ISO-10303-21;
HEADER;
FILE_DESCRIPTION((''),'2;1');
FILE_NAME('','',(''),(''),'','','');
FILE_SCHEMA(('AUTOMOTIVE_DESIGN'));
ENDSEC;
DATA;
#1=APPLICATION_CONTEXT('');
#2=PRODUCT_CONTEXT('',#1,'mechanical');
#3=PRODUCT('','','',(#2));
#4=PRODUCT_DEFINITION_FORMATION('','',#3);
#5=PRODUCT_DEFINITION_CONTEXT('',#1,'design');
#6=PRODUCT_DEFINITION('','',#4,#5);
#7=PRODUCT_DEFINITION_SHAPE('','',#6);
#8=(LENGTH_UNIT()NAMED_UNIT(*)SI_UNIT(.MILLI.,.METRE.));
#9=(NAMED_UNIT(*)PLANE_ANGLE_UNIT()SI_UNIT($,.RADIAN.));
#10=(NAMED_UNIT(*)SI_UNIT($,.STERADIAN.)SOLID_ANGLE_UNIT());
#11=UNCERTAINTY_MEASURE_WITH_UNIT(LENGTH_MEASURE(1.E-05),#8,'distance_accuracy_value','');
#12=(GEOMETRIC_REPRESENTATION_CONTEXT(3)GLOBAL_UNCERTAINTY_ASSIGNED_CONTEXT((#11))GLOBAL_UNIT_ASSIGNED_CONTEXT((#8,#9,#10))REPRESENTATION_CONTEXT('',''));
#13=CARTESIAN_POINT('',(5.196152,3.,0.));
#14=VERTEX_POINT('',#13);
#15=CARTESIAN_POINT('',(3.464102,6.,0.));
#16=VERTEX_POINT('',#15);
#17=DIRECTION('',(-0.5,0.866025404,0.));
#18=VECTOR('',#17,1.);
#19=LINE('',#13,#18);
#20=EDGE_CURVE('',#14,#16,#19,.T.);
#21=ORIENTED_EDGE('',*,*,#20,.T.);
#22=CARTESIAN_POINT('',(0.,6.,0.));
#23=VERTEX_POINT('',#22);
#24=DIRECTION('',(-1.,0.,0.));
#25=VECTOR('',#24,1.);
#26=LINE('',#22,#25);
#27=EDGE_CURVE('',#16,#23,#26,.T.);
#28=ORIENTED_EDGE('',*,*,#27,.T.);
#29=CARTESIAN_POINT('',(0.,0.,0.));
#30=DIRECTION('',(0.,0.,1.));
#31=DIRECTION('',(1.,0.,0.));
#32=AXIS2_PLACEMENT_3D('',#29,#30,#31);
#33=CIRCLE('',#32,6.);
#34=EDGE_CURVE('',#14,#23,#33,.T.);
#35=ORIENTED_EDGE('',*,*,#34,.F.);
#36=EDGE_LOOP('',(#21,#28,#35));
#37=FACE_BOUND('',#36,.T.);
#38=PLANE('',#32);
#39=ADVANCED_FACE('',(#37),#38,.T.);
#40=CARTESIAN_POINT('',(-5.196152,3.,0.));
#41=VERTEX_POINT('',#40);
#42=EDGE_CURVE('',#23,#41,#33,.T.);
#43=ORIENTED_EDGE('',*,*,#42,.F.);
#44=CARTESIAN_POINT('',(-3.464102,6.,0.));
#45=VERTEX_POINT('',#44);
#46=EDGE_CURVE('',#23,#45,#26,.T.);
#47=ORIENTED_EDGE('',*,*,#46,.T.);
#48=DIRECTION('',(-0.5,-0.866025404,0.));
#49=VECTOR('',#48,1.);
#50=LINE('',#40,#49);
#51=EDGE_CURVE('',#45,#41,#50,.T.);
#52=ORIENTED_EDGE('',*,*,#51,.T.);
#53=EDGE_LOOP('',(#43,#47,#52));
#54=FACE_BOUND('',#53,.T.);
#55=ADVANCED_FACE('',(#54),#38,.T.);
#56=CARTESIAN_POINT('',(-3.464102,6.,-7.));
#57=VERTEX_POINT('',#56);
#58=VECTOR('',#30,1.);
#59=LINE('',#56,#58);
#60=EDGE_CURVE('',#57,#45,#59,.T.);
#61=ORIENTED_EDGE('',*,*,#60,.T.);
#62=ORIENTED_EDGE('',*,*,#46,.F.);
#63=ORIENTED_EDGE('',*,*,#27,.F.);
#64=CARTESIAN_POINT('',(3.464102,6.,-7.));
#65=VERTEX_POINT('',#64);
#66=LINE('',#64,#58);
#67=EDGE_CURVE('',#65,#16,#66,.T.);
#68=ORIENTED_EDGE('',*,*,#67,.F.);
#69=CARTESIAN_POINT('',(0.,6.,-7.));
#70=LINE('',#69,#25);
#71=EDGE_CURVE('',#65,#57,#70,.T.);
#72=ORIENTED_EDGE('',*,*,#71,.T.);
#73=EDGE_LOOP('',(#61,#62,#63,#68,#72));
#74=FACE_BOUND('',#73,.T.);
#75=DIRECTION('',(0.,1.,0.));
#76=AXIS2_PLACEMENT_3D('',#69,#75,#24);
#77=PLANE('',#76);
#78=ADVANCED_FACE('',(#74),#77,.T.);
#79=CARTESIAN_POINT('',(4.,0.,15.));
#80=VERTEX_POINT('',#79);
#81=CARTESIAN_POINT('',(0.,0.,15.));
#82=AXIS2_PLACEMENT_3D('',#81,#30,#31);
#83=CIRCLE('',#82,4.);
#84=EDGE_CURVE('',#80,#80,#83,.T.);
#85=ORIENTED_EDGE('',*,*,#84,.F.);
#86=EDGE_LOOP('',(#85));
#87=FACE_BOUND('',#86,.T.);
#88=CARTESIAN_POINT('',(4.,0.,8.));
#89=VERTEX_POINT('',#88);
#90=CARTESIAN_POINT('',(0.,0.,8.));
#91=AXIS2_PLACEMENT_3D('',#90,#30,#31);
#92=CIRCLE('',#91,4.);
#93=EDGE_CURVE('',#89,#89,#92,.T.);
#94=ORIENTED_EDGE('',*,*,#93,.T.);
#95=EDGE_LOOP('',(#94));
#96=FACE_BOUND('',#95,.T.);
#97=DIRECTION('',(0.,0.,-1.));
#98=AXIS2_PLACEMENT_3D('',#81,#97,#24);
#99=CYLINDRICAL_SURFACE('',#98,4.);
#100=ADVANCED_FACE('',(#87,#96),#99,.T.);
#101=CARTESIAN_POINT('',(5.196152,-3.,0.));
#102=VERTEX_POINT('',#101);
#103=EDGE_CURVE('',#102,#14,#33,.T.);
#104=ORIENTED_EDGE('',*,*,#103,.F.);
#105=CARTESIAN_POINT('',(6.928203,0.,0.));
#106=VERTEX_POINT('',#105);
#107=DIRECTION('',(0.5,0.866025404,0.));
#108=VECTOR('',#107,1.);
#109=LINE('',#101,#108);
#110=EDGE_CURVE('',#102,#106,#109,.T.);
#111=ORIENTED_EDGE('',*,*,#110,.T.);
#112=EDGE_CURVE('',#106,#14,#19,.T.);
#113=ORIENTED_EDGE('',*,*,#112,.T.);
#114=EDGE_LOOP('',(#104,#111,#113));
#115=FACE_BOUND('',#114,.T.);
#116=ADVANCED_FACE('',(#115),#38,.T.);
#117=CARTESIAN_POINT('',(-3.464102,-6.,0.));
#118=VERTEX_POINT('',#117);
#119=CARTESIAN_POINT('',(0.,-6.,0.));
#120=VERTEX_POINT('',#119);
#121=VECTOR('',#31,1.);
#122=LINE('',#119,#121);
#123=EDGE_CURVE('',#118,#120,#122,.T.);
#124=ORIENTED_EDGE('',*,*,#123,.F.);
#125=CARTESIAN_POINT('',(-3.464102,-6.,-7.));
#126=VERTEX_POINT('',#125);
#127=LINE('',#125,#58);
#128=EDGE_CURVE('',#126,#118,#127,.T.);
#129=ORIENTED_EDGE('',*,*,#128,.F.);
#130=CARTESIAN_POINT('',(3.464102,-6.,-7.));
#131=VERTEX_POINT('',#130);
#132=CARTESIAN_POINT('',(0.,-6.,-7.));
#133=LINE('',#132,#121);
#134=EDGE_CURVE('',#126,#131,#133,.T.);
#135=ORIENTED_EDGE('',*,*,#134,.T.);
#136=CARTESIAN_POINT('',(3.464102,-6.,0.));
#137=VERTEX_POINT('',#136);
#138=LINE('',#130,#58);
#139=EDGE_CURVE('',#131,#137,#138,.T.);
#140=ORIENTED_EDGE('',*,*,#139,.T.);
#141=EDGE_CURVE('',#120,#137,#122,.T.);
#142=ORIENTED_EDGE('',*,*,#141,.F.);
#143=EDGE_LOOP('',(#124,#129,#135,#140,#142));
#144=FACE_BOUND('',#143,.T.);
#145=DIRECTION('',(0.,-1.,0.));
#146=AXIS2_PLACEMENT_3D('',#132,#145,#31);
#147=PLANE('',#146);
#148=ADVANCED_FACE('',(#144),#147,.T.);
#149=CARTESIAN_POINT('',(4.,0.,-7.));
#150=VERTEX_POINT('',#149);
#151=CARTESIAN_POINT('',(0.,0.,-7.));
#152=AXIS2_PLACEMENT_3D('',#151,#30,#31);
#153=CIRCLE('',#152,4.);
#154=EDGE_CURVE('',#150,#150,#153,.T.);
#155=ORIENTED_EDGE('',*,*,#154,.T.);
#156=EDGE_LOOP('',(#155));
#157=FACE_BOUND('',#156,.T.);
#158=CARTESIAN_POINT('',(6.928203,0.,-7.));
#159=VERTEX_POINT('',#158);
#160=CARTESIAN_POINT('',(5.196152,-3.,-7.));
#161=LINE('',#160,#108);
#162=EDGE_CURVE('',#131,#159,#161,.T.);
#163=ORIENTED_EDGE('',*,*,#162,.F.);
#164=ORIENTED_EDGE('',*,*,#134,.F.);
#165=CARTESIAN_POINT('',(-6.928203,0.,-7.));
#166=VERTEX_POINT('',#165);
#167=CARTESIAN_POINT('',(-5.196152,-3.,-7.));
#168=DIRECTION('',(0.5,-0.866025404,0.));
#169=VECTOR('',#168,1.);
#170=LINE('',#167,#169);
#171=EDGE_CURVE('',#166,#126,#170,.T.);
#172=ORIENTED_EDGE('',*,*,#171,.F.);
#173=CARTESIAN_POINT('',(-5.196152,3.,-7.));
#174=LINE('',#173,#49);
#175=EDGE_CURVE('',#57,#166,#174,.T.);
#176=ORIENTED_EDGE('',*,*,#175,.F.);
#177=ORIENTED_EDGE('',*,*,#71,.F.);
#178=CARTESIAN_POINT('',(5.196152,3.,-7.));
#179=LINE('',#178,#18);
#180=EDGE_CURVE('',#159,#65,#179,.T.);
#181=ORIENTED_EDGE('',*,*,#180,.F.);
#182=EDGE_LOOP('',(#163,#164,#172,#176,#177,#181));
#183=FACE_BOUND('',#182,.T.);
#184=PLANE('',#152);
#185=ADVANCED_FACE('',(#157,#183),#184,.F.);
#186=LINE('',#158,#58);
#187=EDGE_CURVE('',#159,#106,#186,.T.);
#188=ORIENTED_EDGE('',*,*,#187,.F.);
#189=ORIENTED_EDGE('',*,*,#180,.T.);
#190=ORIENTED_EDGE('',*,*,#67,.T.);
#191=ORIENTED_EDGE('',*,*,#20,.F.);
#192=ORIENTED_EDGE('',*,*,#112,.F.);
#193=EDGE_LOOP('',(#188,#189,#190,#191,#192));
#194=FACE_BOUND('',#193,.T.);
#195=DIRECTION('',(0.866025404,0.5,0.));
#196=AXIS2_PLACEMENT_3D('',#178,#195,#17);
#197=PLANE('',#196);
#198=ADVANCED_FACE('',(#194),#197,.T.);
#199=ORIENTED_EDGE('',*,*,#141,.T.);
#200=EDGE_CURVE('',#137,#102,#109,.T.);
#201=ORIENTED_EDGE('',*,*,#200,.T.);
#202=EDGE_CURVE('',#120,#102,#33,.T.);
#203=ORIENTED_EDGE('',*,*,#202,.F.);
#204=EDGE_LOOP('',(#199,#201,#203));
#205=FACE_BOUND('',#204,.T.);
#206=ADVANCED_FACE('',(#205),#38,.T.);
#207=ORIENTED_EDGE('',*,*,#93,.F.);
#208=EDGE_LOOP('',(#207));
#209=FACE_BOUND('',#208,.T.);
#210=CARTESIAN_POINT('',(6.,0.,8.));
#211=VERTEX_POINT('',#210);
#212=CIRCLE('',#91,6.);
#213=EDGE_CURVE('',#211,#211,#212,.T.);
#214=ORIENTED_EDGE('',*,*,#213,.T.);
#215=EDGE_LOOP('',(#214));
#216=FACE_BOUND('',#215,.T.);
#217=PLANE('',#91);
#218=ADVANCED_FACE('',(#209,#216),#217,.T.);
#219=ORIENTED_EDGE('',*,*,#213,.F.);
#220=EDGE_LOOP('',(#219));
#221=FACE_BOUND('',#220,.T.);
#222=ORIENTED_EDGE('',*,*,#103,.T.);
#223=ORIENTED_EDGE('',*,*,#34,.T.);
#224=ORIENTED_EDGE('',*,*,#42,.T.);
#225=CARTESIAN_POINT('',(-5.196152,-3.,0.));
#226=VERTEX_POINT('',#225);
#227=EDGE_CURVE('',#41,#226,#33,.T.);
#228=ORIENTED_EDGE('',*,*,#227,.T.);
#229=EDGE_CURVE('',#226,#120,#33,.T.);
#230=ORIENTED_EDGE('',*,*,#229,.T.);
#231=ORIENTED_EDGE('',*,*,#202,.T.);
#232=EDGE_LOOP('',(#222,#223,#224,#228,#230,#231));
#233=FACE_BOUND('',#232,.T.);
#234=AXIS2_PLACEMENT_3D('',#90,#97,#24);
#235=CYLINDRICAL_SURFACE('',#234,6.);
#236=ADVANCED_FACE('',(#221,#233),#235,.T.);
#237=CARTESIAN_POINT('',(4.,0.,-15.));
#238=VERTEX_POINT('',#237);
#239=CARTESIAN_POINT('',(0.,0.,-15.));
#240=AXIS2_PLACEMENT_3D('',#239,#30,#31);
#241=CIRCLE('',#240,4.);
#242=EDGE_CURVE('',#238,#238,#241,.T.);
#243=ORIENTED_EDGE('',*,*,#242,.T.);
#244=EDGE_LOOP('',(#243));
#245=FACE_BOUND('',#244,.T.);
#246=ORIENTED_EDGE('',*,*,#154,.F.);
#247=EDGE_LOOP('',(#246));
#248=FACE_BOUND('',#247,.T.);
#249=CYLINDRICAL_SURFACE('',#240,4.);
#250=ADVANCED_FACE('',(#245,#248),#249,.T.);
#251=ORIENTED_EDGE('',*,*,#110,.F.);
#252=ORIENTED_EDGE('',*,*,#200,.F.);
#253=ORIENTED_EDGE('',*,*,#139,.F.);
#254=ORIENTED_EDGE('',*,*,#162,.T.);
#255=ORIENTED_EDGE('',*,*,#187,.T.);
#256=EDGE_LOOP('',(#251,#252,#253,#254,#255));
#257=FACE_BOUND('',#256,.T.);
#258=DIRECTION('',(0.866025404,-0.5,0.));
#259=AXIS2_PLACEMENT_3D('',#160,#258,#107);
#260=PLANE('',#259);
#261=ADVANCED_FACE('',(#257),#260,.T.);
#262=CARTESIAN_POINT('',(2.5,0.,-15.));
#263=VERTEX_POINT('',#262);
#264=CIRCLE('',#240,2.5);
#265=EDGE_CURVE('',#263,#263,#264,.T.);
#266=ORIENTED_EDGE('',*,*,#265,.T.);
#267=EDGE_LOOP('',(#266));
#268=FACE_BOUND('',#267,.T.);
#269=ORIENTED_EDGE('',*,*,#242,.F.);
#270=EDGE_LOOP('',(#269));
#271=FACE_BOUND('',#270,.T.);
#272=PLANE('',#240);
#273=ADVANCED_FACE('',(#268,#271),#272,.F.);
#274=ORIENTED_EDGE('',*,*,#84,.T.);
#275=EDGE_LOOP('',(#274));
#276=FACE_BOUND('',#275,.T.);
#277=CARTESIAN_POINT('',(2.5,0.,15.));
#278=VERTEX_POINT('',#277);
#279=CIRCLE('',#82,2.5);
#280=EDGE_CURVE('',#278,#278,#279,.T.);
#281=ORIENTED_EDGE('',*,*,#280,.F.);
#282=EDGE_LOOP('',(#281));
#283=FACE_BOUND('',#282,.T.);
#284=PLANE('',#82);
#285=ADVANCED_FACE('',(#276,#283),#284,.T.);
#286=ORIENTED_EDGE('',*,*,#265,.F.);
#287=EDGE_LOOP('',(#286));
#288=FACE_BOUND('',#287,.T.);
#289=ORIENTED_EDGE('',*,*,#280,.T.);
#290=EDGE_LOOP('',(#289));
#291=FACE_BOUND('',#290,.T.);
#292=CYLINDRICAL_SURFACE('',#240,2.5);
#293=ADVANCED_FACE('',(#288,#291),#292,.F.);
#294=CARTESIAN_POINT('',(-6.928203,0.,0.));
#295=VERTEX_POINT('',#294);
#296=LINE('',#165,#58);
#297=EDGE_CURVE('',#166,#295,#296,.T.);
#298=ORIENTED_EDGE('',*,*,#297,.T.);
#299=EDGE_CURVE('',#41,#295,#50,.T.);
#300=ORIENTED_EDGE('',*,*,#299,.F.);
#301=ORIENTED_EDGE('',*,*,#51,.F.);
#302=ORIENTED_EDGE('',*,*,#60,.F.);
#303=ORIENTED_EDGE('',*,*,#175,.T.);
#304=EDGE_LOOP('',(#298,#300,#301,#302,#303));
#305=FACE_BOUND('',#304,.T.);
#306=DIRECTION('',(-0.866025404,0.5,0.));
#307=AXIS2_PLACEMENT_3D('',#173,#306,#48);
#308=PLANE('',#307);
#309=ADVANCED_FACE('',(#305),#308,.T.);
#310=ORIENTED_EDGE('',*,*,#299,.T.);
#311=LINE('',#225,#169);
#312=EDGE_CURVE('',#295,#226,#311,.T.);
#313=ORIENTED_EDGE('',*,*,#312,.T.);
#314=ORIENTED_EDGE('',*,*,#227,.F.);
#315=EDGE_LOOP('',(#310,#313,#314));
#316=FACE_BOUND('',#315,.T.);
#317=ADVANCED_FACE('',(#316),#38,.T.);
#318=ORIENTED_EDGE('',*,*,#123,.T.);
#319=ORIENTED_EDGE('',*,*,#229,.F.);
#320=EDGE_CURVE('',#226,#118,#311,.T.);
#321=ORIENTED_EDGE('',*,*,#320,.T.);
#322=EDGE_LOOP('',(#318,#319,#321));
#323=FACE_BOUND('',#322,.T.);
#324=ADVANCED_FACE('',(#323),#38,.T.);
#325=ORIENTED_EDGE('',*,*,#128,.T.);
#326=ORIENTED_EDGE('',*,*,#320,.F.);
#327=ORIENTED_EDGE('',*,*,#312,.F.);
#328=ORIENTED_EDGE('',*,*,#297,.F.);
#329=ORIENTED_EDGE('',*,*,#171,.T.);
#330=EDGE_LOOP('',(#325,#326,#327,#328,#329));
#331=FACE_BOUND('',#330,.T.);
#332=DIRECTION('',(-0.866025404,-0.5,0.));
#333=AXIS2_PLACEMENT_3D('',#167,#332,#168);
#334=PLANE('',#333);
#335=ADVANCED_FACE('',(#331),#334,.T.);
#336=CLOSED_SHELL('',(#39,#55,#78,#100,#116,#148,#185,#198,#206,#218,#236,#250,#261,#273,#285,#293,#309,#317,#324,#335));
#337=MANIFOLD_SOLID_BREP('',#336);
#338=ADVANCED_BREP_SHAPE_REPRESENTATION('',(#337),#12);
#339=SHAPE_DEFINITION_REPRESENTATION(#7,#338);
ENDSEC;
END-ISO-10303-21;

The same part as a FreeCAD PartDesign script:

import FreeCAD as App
import Part
import Sketcher

V = App.Vector
Q = App.Units.Quantity

doc = App.newDocument("Part")
body = doc.addObject("PartDesign::Body", "Body")

# Sketch on XY plane
sketch1 = body.newObject("Sketcher::SketchObject", "Sketch")
sketch1.AttachmentSupport = (doc.getObject("XY_Plane"), [""])
sketch1.MapMode = "FlatFace"
sketch1.addGeometry(Part.LineSegment(V(-3.464102, 6, 0), V(-5.196153, 3, 0)), False)
sketch1.addGeometry(Part.LineSegment(V(-5.196153, 3, 0), V(-6.928203, 0, 0)), False)
sketch1.addGeometry(Part.LineSegment(V(-6.928203, 0, 0), V(-5.196153, -3, 0)), False)
sketch1.addGeometry(Part.LineSegment(V(-5.196153, -3, 0), V(-3.464102, -6, 0)), False)
sketch1.addGeometry(Part.LineSegment(V(-3.464102, -6, 0), V(3.464102, -6, 0)), False)
sketch1.addGeometry(Part.LineSegment(V(3.464102, -6, 0), V(5.196152, -3, 0)), False)
sketch1.addGeometry(Part.LineSegment(V(5.196152, -3, 0), V(6.928203, 0, 0)), False)
sketch1.addGeometry(Part.LineSegment(V(6.928203, 0, 0), V(5.196153, 3, 0)), False)
sketch1.addGeometry(Part.LineSegment(V(5.196153, 3, 0), V(3.464102, 6, 0)), False)
sketch1.addGeometry(Part.LineSegment(V(3.464102, 6, 0), V(-3.464102, 6, 0)), False)
sketch1.addGeometry(Part.Circle(V(0, 0, 0), V(0, 0, 1), 4), False)
sketch1.addConstraint(Sketcher.Constraint("Coincident", 0, 2, 1, 1))
sketch1.addConstraint(Sketcher.Constraint("Coincident", 1, 2, 2, 1))
sketch1.addConstraint(Sketcher.Constraint("Coincident", 2, 2, 3, 1))
sketch1.addConstraint(Sketcher.Constraint("Coincident", 3, 2, 4, 1))
sketch1.addConstraint(Sketcher.Constraint("Coincident", 4, 2, 5, 1))
sketch1.addConstraint(Sketcher.Constraint("Coincident", 5, 2, 6, 1))
sketch1.addConstraint(Sketcher.Constraint("Coincident", 6, 2, 7, 1))
sketch1.addConstraint(Sketcher.Constraint("Coincident", 7, 2, 8, 1))
sketch1.addConstraint(Sketcher.Constraint("Coincident", 8, 2, 9, 1))
sketch1.addConstraint(Sketcher.Constraint("Coincident", 9, 2, 0, 1))
sketch1.addConstraint(Sketcher.Constraint("Horizontal", 4))
sketch1.addConstraint(Sketcher.Constraint("Horizontal", 9))
sketch1.addConstraint(Sketcher.Constraint("Coincident", 10, 3, -1, 1))
sketch1.addConstraint(Sketcher.Constraint("Symmetric", 0, 2, 5, 2, -1, 1))
sketch1.addConstraint(Sketcher.Constraint("Symmetric", 1, 2, 6, 2, -1, 1))
sketch1.addConstraint(Sketcher.Constraint("Symmetric", 2, 2, 7, 2, -1, 1))
sketch1.addConstraint(Sketcher.Constraint("Symmetric", 3, 2, 8, 2, -1, 1))
sketch1.addConstraint(Sketcher.Constraint("Symmetric", 2, 2, 5, 2, -2))
sketch1.addConstraint(Sketcher.Constraint("PointOnObject", 1, 2, -1))
sketch1.addConstraint(Sketcher.Constraint("Parallel", 0, 1))
sketch1.addConstraint(Sketcher.Constraint("Parallel", 2, 3))
sketch1.addConstraint(Sketcher.Constraint("Parallel", 1, 5))
sketch1.addConstraint(Sketcher.Constraint("Equal", 0, 1))
sketch1.addConstraint(Sketcher.Constraint("Diameter", 10, Q("8 mm")))
sketch1.addConstraint(Sketcher.Constraint("Angle", 0, Q("-120 deg")))
sketch1.addConstraint(Sketcher.Constraint("DistanceY", -1, 1, 0, 2, Q("3 mm")))
sketch1.addConstraint(Sketcher.Constraint("DistanceX", 3, 2, -1, 1, Q("3.464102 mm")))
pad1 = body.newObject("PartDesign::Pad", "Pad")
pad1.Profile = sketch1
pad1.Length = 7
pad1.Reversed = True

# Sketch on XY plane
sketch2 = body.newObject("Sketcher::SketchObject", "Sketch001")
sketch2.AttachmentSupport = (doc.getObject("XY_Plane"), [""])
sketch2.MapMode = "FlatFace"
sketch2.addGeometry(Part.Circle(V(0, 0, 0), V(0, 0, 1), 4), False)
sketch2.addGeometry(Part.Circle(V(0, 0, 0), V(0, 0, 1), 2.5), False)
sketch2.addConstraint(Sketcher.Constraint("Coincident", 0, 3, -1, 1))
sketch2.addConstraint(Sketcher.Constraint("Coincident", 1, 3, -1, 1))
sketch2.addConstraint(Sketcher.Constraint("Diameter", 0, Q("8 mm")))
sketch2.addConstraint(Sketcher.Constraint("Diameter", 1, Q("5 mm")))
pad2 = body.newObject("PartDesign::Pad", "Pad001")
pad2.Profile = sketch2
pad2.Length = 15
pad2.Reversed = True

# Sketch on XY plane
sketch3 = body.newObject("Sketcher::SketchObject", "Sketch002")
sketch3.AttachmentSupport = (doc.getObject("XY_Plane"), [""])
sketch3.MapMode = "FlatFace"
sketch3.AttachmentOffset = App.Placement(V(0, 0, 8), App.Rotation())
sketch3.addGeometry(Part.Circle(V(0, 0, 0), V(0, 0, 1), 6), False)
sketch3.addGeometry(Part.Circle(V(0, 0, 0), V(0, 0, 1), 4), False)
sketch3.addConstraint(Sketcher.Constraint("Coincident", 0, 3, -1, 1))
sketch3.addConstraint(Sketcher.Constraint("Coincident", 1, 3, -1, 1))
sketch3.addConstraint(Sketcher.Constraint("Diameter", 0, Q("12 mm")))
sketch3.addConstraint(Sketcher.Constraint("Diameter", 1, Q("8 mm")))
pad3 = body.newObject("PartDesign::Pad", "Pad002")
pad3.Profile = sketch3
pad3.Length = 8
pad3.Reversed = True

# Sketch on XY plane
sketch4 = body.newObject("Sketcher::SketchObject", "Sketch003")
sketch4.AttachmentSupport = (doc.getObject("XY_Plane"), [""])
sketch4.MapMode = "FlatFace"
sketch4.AttachmentOffset = App.Placement(V(0, 0, 15), App.Rotation())
sketch4.addGeometry(Part.Circle(V(0, 0, 0), V(0, 0, 1), 4), False)
sketch4.addGeometry(Part.Circle(V(0, 0, 0), V(0, 0, 1), 2.5), False)
sketch4.addConstraint(Sketcher.Constraint("Coincident", 0, 3, -1, 1))
sketch4.addConstraint(Sketcher.Constraint("Coincident", 1, 3, -1, 1))
sketch4.addConstraint(Sketcher.Constraint("Diameter", 0, Q("8 mm")))
sketch4.addConstraint(Sketcher.Constraint("Diameter", 1, Q("5 mm")))
pad4 = body.newObject("PartDesign::Pad", "Pad003")
pad4.Profile = sketch4
pad4.Length = 15
pad4.Reversed = True

doc.recompute()
